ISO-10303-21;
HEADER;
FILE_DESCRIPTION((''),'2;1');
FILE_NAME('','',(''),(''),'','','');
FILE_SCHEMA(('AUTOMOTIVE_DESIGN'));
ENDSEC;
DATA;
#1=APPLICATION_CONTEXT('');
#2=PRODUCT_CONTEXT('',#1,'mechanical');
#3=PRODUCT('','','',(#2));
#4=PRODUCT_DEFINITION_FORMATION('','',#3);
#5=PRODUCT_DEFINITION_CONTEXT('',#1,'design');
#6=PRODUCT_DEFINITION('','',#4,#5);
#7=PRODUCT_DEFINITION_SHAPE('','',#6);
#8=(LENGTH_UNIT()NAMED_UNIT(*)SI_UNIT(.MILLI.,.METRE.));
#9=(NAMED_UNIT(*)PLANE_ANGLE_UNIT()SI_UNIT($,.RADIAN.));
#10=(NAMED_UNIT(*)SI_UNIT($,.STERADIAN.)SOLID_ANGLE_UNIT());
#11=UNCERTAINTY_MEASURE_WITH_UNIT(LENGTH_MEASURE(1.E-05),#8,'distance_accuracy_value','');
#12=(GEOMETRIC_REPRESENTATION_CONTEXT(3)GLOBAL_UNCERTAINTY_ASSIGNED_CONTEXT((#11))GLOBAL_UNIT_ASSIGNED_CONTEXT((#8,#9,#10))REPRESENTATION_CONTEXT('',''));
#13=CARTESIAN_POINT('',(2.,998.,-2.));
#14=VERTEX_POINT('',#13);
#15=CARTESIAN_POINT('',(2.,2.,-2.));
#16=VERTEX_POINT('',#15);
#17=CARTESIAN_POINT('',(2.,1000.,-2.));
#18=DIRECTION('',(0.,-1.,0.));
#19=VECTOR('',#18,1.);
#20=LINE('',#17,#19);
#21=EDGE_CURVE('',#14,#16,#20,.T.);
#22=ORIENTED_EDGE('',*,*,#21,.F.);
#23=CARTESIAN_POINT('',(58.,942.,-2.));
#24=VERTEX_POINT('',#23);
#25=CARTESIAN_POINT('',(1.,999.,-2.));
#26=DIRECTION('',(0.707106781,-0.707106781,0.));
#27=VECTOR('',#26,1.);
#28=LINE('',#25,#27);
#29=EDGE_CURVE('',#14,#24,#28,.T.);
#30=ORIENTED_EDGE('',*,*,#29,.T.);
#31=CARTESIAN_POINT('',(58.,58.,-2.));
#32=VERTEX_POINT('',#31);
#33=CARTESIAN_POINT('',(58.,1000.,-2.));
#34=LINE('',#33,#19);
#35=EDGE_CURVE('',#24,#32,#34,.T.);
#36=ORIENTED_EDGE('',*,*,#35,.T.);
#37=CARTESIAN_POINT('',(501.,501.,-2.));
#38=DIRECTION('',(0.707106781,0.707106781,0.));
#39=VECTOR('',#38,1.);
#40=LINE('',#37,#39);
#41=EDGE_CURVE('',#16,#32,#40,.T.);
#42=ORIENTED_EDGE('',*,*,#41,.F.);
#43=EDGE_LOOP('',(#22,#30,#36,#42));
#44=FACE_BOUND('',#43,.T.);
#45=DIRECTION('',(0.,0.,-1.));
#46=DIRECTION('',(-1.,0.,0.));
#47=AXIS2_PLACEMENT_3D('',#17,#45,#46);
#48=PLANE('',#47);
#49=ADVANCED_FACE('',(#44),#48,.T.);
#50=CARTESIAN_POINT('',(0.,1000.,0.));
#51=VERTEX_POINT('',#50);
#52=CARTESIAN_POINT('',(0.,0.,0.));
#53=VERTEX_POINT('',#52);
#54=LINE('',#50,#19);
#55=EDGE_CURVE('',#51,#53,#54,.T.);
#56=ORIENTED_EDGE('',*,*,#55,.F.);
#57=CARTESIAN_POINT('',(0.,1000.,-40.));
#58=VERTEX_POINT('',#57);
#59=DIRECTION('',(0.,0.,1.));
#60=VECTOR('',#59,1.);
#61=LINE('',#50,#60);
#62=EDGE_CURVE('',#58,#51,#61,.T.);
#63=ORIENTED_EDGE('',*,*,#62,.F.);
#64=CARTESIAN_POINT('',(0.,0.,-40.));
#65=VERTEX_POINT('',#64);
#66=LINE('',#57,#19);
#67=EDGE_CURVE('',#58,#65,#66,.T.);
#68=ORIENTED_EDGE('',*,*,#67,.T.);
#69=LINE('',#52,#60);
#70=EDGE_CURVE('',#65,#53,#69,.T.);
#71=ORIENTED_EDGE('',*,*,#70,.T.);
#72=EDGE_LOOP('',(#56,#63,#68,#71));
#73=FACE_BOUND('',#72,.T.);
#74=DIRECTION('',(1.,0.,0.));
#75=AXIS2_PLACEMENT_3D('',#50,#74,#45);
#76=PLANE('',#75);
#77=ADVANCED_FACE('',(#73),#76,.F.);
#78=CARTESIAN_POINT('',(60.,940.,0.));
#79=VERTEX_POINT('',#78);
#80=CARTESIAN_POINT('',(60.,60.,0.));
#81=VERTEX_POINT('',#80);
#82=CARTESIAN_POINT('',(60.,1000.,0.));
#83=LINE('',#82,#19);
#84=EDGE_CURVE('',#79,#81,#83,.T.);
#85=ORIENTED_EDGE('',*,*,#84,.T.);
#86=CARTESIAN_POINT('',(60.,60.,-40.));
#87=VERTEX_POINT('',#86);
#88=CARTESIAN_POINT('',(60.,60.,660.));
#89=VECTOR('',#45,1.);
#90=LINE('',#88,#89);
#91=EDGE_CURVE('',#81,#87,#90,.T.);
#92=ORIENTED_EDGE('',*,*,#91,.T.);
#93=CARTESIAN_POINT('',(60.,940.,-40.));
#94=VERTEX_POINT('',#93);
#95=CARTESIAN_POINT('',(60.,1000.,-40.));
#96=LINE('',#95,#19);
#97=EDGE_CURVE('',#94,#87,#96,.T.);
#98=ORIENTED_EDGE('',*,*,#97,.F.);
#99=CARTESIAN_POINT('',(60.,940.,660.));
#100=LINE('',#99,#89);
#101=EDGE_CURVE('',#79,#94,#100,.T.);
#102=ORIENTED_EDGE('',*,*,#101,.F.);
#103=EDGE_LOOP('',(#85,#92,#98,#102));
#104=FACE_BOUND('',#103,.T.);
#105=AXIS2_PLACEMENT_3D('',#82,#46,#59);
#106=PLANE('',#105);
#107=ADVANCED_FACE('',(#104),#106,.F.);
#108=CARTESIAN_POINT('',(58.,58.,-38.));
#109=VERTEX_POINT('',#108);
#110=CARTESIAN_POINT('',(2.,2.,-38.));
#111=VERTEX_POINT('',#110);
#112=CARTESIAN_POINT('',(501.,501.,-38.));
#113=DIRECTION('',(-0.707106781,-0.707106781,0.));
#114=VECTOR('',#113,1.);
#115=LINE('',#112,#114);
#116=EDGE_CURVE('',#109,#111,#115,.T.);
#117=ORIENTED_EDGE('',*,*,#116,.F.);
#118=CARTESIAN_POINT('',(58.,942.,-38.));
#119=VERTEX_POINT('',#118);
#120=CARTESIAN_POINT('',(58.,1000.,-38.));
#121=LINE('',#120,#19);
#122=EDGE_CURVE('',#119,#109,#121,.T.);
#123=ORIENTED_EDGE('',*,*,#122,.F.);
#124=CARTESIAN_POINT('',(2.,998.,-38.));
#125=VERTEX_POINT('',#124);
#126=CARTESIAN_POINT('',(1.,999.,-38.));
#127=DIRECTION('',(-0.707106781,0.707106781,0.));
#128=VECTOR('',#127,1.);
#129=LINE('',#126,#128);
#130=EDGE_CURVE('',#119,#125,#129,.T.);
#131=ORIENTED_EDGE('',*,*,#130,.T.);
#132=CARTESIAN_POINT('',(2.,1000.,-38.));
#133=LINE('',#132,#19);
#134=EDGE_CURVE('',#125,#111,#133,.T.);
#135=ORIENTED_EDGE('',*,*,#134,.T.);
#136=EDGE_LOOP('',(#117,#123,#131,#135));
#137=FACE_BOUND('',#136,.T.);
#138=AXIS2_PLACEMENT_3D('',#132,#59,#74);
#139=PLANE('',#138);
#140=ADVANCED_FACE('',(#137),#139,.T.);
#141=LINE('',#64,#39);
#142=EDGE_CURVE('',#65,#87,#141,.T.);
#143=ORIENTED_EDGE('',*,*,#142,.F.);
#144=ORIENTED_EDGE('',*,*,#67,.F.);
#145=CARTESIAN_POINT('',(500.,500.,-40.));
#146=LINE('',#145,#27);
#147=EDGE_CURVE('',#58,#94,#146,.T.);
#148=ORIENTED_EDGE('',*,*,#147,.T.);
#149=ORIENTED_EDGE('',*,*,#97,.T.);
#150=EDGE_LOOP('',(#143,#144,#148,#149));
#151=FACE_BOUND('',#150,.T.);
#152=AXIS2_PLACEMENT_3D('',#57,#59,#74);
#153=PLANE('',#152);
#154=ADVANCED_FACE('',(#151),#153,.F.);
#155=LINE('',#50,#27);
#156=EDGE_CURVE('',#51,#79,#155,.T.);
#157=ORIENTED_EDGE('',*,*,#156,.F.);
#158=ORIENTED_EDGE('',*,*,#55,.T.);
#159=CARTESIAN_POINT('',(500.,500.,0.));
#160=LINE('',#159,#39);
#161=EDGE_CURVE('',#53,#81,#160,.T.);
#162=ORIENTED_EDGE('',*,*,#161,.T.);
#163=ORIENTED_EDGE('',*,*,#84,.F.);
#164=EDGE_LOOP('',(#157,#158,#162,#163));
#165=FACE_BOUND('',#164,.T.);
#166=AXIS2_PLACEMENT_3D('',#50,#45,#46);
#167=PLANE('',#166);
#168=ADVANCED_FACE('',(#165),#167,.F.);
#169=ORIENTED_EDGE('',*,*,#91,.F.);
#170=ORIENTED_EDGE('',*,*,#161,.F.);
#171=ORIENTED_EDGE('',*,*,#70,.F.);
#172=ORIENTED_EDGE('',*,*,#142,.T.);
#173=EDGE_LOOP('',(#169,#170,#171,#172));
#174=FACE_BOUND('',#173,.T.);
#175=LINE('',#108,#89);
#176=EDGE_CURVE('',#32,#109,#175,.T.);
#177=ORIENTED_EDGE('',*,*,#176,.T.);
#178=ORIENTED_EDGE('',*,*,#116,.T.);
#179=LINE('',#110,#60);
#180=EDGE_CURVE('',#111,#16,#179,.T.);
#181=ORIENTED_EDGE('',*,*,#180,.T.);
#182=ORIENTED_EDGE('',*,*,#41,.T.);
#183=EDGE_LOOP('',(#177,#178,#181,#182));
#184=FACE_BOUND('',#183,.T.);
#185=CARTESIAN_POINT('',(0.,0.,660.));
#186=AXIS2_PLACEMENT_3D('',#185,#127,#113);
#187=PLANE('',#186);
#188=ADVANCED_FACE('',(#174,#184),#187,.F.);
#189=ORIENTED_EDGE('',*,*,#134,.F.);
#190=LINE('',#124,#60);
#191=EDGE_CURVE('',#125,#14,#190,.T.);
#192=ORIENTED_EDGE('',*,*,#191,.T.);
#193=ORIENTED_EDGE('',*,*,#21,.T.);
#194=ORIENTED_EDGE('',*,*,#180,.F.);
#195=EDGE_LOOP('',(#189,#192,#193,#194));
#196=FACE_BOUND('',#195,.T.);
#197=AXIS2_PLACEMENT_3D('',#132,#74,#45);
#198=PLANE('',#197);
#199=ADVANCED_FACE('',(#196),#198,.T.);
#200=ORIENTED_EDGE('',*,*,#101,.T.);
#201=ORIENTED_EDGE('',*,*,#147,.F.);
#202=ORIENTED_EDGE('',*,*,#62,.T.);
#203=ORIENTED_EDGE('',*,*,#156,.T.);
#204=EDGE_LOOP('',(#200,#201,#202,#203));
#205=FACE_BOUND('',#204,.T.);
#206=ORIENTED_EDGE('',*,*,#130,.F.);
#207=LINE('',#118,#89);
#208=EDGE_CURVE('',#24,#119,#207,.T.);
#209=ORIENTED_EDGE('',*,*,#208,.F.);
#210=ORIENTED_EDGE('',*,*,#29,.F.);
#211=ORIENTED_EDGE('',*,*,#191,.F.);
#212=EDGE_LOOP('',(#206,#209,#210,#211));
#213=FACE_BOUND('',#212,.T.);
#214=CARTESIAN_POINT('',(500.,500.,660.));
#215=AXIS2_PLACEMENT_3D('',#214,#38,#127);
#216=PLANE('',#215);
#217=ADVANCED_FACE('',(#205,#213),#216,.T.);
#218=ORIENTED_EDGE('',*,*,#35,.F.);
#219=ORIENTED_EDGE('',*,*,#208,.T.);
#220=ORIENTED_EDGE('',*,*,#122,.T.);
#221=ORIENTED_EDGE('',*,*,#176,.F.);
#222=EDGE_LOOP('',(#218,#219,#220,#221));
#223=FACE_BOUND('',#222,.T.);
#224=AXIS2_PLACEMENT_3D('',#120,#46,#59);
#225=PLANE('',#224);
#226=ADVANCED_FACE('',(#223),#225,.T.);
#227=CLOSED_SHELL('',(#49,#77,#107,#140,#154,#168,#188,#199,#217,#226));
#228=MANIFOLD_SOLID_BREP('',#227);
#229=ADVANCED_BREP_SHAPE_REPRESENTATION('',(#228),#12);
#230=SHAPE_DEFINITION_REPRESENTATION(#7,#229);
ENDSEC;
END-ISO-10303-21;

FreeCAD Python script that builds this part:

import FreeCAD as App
import Part
import Sketcher


def add_polygon(sketch, points):
    """Adds a closed chain of lines whose ends are joined by coincident constraints."""
    first, n = sketch.GeometryCount, len(points)
    for a, b in zip(points, points[1:] + points[:1]):
        sketch.addGeometry(Part.LineSegment(App.Vector(*a, 0), App.Vector(*b, 0)), False)
    for i in range(n):
        sketch.addConstraint(Sketcher.Constraint("Coincident", first + i, 2, first + (i + 1) % n, 1))

doc = App.newDocument("Part")
params = doc.addObject("Spreadsheet::Sheet", "Params")
for row, (alias, value) in enumerate([
    ("sketch1_width", "60 mm"),
    ("sketch1_width2", "56 mm"),
    ("sketch1_height", "40 mm"),
    ("sketch1_height2", "36 mm"),
    ("pad1_length", "1000 mm"),
    ("sketch2_width", "60 mm"),
    ("pocket1_length", "700 mm"),
], start=1):
    params.set(f"A{row}", alias)
    params.set(f"B{row}", "=" + value)
    params.setAlias(f"B{row}", alias)

body = doc.addObject("PartDesign::Body", "Body")

# Sketch on XZ plane
sketch1 = body.newObject("Sketcher::SketchObject", "Sketch")
sketch1.AttachmentSupport = (doc.getObject("XZ_Plane"), [""])
sketch1.MapMode = "FlatFace"
add_polygon(sketch1, [(0, -40), (0, 0), (60, 0), (60, -40)])  # lines 0-3
add_polygon(sketch1, [(58, -2), (2, -2), (2, -38), (58, -38)])  # lines 4-7
sketch1.addConstraint([
    Sketcher.Constraint("Vertical", 0),
    Sketcher.Constraint("Horizontal", 1),
    Sketcher.Constraint("Vertical", 2),
    Sketcher.Constraint("Horizontal", 3),
    Sketcher.Constraint("Horizontal", 4),
    Sketcher.Constraint("Vertical", 5),
    Sketcher.Constraint("Horizontal", 6),
    Sketcher.Constraint("Vertical", 7),
    Sketcher.Constraint("Coincident", 0, 2, -1, 1),
    Sketcher.Constraint("DistanceX", 1, 1, 1, 2, 60.0),
    Sketcher.Constraint("DistanceX", 4, 2, 4, 1, 56.0),
    Sketcher.Constraint("DistanceY", 0, 1, 0, 2, 40.0),
    Sketcher.Constraint("DistanceY", 5, 2, 5, 1, 36.0),
    Sketcher.Constraint("DistanceX", -1, 1, 4, 2, 2.0),
    Sketcher.Constraint("DistanceY", 4, 2, -1, 1, 2.0),
])
sketch1.setExpression("Constraints[17]", "Params.sketch1_width")
sketch1.setExpression("Constraints[18]", "Params.sketch1_width2")
sketch1.setExpression("Constraints[19]", "Params.sketch1_height")
sketch1.setExpression("Constraints[20]", "Params.sketch1_height2")
pad1 = body.newObject("PartDesign::Pad", "Pad")
pad1.Profile = sketch1
pad1.setExpression("Length", "Params.pad1_length")
pad1.Reversed = True

# Sketch on XY plane
sketch2 = body.newObject("Sketcher::SketchObject", "Sketch001")
sketch2.AttachmentSupport = (doc.getObject("XY_Plane"), [""])
sketch2.MapMode = "FlatFace"
sketch2.AttachmentOffset = App.Placement(App.Vector(0, 0, -40), App.Rotation())
add_polygon(sketch2, [(60, 940), (0, 1000), (60, 1000)])  # lines 0-2
add_polygon(sketch2, [(60, 0), (0, 0), (60, 60)])  # lines 3-5
sketch2.addConstraint([
    Sketcher.Constraint("Horizontal", 1),
    Sketcher.Constraint("Vertical", 2),
    Sketcher.Constraint("Horizontal", 3),
    Sketcher.Constraint("Vertical", 5),
    Sketcher.Constraint("Coincident", 3, 2, -1, 1),
    Sketcher.Constraint("PointOnObject", 0, 2, -2),
    Sketcher.Constraint("Perpendicular", 0, 4),
    Sketcher.Constraint("Vertical", 2, 2, 4, 2),
    Sketcher.Constraint("Equal", 3, 2),
    Sketcher.Constraint("DistanceX", 1, 1, 1, 2, 60.0),
    Sketcher.Constraint("DistanceY", -1, 1, 0, 2, 1000.0),
])
sketch2.setExpression("Constraints[15]", "Params.sketch2_width")
pocket1 = body.newObject("PartDesign::Pocket", "Pocket")
pocket1.Profile = sketch2
pocket1.setExpression("Length", "Params.pocket1_length")
pocket1.Reversed = True

doc.recompute()
